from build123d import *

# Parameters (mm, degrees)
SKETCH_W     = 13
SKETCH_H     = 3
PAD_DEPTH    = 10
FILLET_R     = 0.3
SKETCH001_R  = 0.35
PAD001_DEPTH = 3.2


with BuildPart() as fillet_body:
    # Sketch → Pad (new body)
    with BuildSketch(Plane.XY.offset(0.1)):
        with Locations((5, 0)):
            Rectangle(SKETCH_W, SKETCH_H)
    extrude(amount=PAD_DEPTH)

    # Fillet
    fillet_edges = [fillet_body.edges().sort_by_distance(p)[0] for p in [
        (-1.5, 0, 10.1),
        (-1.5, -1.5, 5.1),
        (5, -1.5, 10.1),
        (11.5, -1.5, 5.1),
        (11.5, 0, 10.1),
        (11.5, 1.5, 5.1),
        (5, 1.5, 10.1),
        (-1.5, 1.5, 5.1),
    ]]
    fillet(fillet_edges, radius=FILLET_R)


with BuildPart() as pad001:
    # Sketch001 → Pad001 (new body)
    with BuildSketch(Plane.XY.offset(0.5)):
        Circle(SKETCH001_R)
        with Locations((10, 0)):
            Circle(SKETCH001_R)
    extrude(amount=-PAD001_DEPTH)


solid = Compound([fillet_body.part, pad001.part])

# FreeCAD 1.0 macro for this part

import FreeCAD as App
import Part
import Sketcher
from FreeCAD import Vector
Q = App.Units.Quantity


def edges_at(feature, points):
    """Names of the edges that pass closest to the given points."""
    edges = feature.Shape.Edges
    near = lambda p: min(range(len(edges)), key=lambda i: edges[i].distToShape(Part.Vertex(*p))[0])
    return sorted({f"Edge{near(p) + 1}" for p in points})


def add_polygon(sketch, points):
    """Adds a closed chain of lines whose ends are joined by coincident constraints."""
    first, n = sketch.GeometryCount, len(points)
    for a, b in zip(points, points[1:] + points[:1]):
        sketch.addGeometry(Part.LineSegment(App.Vector(*a, 0), App.Vector(*b, 0)), False)
    for i in range(n):
        sketch.addConstraint(Sketcher.Constraint("Coincident", first + i, 2, first + (i + 1) % n, 1))

doc = App.newDocument("Part")
body = doc.addObject("PartDesign::Body", "Body")

# Sketch on XY plane
sketch1 = doc.addObject("Sketcher::SketchObject", "Sketch")
body.addObject(sketch1)
sketch1.AttachmentSupport = (doc.XY_Plane, [""])
sketch1.MapMode = "FlatFace"
sketch1.AttachmentOffset = App.Placement(Vector(0, 0, 0.1), App.Rotation())
add_polygon(sketch1, [(-1.5, 1.5), (-1.5, -1.5), (11.5, -1.5), (11.5, 1.5)])  # lines 0-3
sketch1.addConstraint([
    Sketcher.Constraint("Vertical", 0),
    Sketcher.Constraint("Horizontal", 1),
    Sketcher.Constraint("Vertical", 2),
    Sketcher.Constraint("Horizontal", 3),
    Sketcher.Constraint("DistanceX", 1, 1, 1, 2, Q("13 mm")),
    Sketcher.Constraint("DistanceY", 0, 2, 0, 1, Q("3 mm")),
    Sketcher.Constraint("DistanceX", 0, 2, -1, 1, Q("1.5 mm")),
    Sketcher.Constraint("DistanceY", 0, 2, -1, 1, Q("1.5 mm")),
])
pad1 = doc.addObject("PartDesign::Pad", "Pad")
body.addObject(pad1)
pad1.Profile = sketch1
pad1.Length = 10
doc.recompute()

fillet = doc.addObject("PartDesign::Fillet", "Fillet")
body.addObject(fillet)
fillet.Base = (pad1, edges_at(pad1, [
    (-1.5, 0, 10.1),
    (-1.5, -1.5, 5.1),
    (5, -1.5, 10.1),
    (11.5, -1.5, 5.1),
    (11.5, 0, 10.1),
    (11.5, 1.5, 5.1),
    (5, 1.5, 10.1),
    (-1.5, 1.5, 5.1),
]))
fillet.Radius = 0.3
body2 = doc.addObject("PartDesign::Body", "Body001")
body2.AllowCompound = True

# Sketch on XY plane
sketch2 = doc.addObject("Sketcher::SketchObject", "Sketch001")
body2.addObject(sketch2)
sketch2.AttachmentSupport = (doc.getObject("XY_Plane001"), [""])
sketch2.MapMode = "FlatFace"
sketch2.AttachmentOffset = App.Placement(Vector(0, 0, 0.5), App.Rotation())
sketch2.addGeometry([
    Part.Circle(Vector(0, 0, 0), Vector(0, 0, 1), 0.35),
    Part.Circle(Vector(10, 0, 0), Vector(0, 0, 1), 0.35),
], False)
sketch2.addConstraint([
    Sketcher.Constraint("Coincident", 0, 3, -1, 1),
    Sketcher.Constraint("Equal", 0, 1),
    Sketcher.Constraint("PointOnObject", 1, 3, -1),
    Sketcher.Constraint("Diameter", 0, Q("0.7 mm")),
    Sketcher.Constraint("DistanceX", -1, 1, 1, 3, Q("10 mm")),
])
pad2 = doc.addObject("PartDesign::Pad", "Pad001")
body2.addObject(pad2)
pad2.Profile = sketch2
pad2.Length = 3.2
pad2.Reversed = True

doc.recompute()
